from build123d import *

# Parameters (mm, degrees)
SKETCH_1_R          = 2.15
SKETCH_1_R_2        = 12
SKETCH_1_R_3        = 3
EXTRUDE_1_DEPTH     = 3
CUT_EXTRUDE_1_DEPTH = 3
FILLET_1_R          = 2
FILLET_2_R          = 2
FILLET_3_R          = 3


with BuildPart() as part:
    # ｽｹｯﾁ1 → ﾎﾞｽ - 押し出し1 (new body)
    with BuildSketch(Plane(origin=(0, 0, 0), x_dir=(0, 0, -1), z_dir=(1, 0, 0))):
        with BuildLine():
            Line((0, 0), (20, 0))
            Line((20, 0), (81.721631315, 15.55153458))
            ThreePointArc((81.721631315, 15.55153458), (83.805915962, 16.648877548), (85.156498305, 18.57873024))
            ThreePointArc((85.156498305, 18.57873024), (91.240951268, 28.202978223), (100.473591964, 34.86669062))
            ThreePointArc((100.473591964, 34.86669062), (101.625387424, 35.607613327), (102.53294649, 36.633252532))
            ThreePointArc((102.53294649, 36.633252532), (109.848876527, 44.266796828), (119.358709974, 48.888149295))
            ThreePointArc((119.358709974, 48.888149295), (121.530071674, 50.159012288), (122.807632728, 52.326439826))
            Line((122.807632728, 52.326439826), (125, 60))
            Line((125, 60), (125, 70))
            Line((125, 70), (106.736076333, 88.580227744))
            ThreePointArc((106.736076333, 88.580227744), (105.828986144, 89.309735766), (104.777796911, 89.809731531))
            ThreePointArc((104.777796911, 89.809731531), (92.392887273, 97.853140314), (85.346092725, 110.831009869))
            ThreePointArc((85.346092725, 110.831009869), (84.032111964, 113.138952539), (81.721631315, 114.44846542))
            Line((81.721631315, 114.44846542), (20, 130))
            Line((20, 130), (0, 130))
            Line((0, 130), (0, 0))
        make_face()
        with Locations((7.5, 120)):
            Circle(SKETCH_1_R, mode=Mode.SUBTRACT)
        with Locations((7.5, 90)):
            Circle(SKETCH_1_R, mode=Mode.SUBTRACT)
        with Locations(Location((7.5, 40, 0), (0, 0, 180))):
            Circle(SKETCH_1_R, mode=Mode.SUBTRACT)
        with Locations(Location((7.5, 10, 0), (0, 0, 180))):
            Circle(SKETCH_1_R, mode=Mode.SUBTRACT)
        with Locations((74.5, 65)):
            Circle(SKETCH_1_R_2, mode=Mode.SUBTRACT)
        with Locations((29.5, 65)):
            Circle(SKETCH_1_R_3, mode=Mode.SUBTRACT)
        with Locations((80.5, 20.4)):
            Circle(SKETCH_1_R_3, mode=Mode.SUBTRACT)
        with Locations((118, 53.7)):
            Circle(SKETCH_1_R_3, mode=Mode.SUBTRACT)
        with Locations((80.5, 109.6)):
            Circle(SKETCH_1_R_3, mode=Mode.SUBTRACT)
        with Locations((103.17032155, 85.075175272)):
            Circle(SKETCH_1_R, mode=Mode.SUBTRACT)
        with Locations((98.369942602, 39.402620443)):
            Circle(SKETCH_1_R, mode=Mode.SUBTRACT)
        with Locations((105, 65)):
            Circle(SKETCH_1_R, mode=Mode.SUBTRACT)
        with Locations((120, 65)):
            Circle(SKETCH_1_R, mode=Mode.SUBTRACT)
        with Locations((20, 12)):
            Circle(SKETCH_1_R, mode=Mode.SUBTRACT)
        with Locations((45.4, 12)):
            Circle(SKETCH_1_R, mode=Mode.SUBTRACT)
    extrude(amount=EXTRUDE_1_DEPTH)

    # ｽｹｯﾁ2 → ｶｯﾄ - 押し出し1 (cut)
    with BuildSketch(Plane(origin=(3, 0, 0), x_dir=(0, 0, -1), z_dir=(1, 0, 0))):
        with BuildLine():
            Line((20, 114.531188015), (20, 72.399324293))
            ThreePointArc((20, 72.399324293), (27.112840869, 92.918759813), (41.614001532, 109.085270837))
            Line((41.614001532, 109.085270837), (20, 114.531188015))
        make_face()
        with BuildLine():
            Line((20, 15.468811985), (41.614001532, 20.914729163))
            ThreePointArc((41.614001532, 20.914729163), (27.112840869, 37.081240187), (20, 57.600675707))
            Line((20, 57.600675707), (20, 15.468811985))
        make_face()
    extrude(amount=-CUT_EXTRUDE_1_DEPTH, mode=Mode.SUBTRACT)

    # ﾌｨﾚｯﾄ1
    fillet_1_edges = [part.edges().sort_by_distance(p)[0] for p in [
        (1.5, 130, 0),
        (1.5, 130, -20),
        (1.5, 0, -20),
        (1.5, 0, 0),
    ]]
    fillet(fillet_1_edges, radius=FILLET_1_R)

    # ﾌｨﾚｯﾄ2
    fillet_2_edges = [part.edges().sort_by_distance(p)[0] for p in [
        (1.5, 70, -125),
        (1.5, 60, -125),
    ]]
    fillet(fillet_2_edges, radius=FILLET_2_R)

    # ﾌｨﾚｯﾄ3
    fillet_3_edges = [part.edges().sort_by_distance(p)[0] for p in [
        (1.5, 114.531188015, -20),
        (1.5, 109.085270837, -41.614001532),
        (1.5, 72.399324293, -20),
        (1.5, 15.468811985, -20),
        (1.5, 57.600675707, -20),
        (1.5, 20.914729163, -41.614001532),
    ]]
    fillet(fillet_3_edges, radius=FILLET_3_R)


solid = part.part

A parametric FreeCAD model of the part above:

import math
import FreeCAD as App
import Part
import Sketcher


def edges_at(feature, points):
    """Names of the edges that pass closest to the given points."""
    edges = feature.Shape.Edges
    near = lambda p: min(range(len(edges)), key=lambda i: edges[i].distToShape(Part.Vertex(*p))[0])
    return sorted({f"Edge{near(p) + 1}" for p in points})

doc = App.newDocument("Part")
body = doc.addObject("PartDesign::Body", "Body")

sketch1 = body.newObject("Sketcher::SketchObject", "Sketch")
sketch1.AttachmentSupport = (doc.getObject("YZ_Plane"), [""])
sketch1.MapMode = "FlatFace"
sketch1.addGeometry(Part.LineSegment(App.Vector(0, 0, 0), App.Vector(0, -20, 0)), False)
sketch1.addGeometry(Part.LineSegment(App.Vector(0, -20, 0), App.Vector(15.551535, -81.721631, 0)), False)
sketch1.addGeometry(Part.ArcOfCircle(Part.Circle(App.Vector(20.4, -80.5, 0), App.Vector(0, 0, 1), 5), math.radians(-165.857979), math.radians(-111.361677)), False)
sketch1.addGeometry(Part.ArcOfCircle(Part.Circle(App.Vector(7.651112, -113.095488, 0), App.Vector(0, 0, 1), 30), math.radians(24.880676), math.radians(68.638323)), False)
sketch1.addGeometry(Part.ArcOfCircle(Part.Circle(App.Vector(39.40262, -98.369943, 0), App.Vector(0, 0, 1), 5), math.radians(-155.119324), math.radians(-123.633165)), False)
sketch1.addGeometry(Part.ArcOfCircle(Part.Circle(App.Vector(20.017045, -127.51097, 0), App.Vector(0, 0, 1), 30), math.radians(15.767952), math.radians(56.366835)), False)
sketch1.addGeometry(Part.ArcOfCircle(Part.Circle(App.Vector(53.7, -118, 0), App.Vector(0, 0, 1), 5), math.radians(-164.232048), math.radians(-105.944854)), False)
sketch1.addGeometry(Part.LineSegment(App.Vector(52.32644, -122.807633, 0), App.Vector(60, -125, 0)), False)
sketch1.addGeometry(Part.LineSegment(App.Vector(60, -125, 0), App.Vector(70, -125, 0)), False)
sketch1.addGeometry(Part.LineSegment(App.Vector(70, -125, 0), App.Vector(88.580228, -106.736076, 0)), False)
sketch1.addGeometry(Part.ArcOfCircle(Part.Circle(App.Vector(85.075175, -103.170322, 0), App.Vector(0, 0, 1), 5), math.radians(-45.491868), math.radians(-18.753365)), False)
sketch1.addGeometry(Part.ArcOfCircle(Part.Circle(App.Vector(118.217069, -114.422649, 0), App.Vector(0, 0, 1), 30), math.radians(104.252878), math.radians(161.246635)), False)
sketch1.addGeometry(Part.ArcOfCircle(Part.Circle(App.Vector(109.6, -80.5, 0), App.Vector(0, 0, 1), 5), math.radians(-75.747122), math.radians(-14.142021)), False)
sketch1.addGeometry(Part.LineSegment(App.Vector(114.448465, -81.721631, 0), App.Vector(130, -20, 0)), False)
sketch1.addGeometry(Part.LineSegment(App.Vector(130, -20, 0), App.Vector(130, 0, 0)), False)
sketch1.addGeometry(Part.LineSegment(App.Vector(130, 0, 0), App.Vector(0, 0, 0)), False)
sketch1.addGeometry(Part.Circle(App.Vector(10, -7.5, 0), App.Vector(0, 0, 1), 2.15), False)
sketch1.addGeometry(Part.Circle(App.Vector(12, -20, 0), App.Vector(0, 0, 1), 2.15), False)
sketch1.addGeometry(Part.Circle(App.Vector(12, -45.4, 0), App.Vector(0, 0, 1), 2.15), False)
sketch1.addGeometry(Part.Circle(App.Vector(40, -7.5, 0), App.Vector(0, 0, 1), 2.15), False)
sketch1.addGeometry(Part.Circle(App.Vector(20.4, -80.5, 0), App.Vector(0, 0, 1), 3), False)
sketch1.addGeometry(Part.Circle(App.Vector(39.40262, -98.369943, 0), App.Vector(0, 0, 1), 2.15), False)
sketch1.addGeometry(Part.Circle(App.Vector(53.7, -118, 0), App.Vector(0, 0, 1), 3), False)
sketch1.addGeometry(Part.Circle(App.Vector(65, -29.5, 0), App.Vector(0, 0, 1), 3), False)
sketch1.addGeometry(Part.Circle(App.Vector(90, -7.5, 0), App.Vector(0, 0, 1), 2.15), False)
sketch1.addGeometry(Part.Circle(App.Vector(120, -7.5, 0), App.Vector(0, 0, 1), 2.15), False)
sketch1.addGeometry(Part.Circle(App.Vector(65, -74.5, 0), App.Vector(0, 0, 1), 12), False)
sketch1.addGeometry(Part.Circle(App.Vector(65, -105, 0), App.Vector(0, 0, 1), 2.15), False)
sketch1.addGeometry(Part.Circle(App.Vector(65, -120, 0), App.Vector(0, 0, 1), 2.15), False)
sketch1.addGeometry(Part.Circle(App.Vector(85.075175, -103.170322, 0), App.Vector(0, 0, 1), 2.15), False)
sketch1.addGeometry(Part.Circle(App.Vector(109.6, -80.5, 0), App.Vector(0, 0, 1), 3), False)
sketch1.addConstraint(Sketcher.Constraint("Coincident", 0, 2, 1, 1))
sketch1.addConstraint(Sketcher.Constraint("Tangent", 1, 2, 2, 1))
sketch1.addConstraint(Sketcher.Constraint("Tangent", 2, 2, 3, 2))
sketch1.addConstraint(Sketcher.Constraint("Tangent", 3, 1, 4, 1))
sketch1.addConstraint(Sketcher.Constraint("Tangent", 4, 2, 5, 2))
sketch1.addConstraint(Sketcher.Constraint("Tangent", 5, 1, 6, 1))
sketch1.addConstraint(Sketcher.Constraint("Tangent", 6, 2, 7, 1))
sketch1.addConstraint(Sketcher.Constraint("Coincident", 7, 2, 8, 1))
sketch1.addConstraint(Sketcher.Constraint("Coincident", 8, 2, 9, 1))
sketch1.addConstraint(Sketcher.Constraint("Tangent", 9, 2, 10, 1))
sketch1.addConstraint(Sketcher.Constraint("Tangent", 10, 2, 11, 2))
sketch1.addConstraint(Sketcher.Constraint("Tangent", 11, 1, 12, 1))
sketch1.addConstraint(Sketcher.Constraint("Tangent", 12, 2, 13, 1))
sketch1.addConstraint(Sketcher.Constraint("Coincident", 13, 2, 14, 1))
sketch1.addConstraint(Sketcher.Constraint("Coincident", 14, 2, 15, 1))
sketch1.addConstraint(Sketcher.Constraint("Coincident", 15, 2, 0, 1))
sketch1.addConstraint(Sketcher.Constraint("Vertical", 0))
sketch1.addConstraint(Sketcher.Constraint("Horizontal", 8))
sketch1.addConstraint(Sketcher.Constraint("Vertical", 14))
sketch1.addConstraint(Sketcher.Constraint("Horizontal", 15))
sketch1.addConstraint(Sketcher.Constraint("Coincident", 15, 2, -1, 1))
sketch1.addConstraint(Sketcher.Constraint("Coincident", 20, 3, 2, 3))
sketch1.addConstraint(Sketcher.Constraint("Coincident", 21, 3, 4, 3))
sketch1.addConstraint(Sketcher.Constraint("Coincident", 22, 3, 6, 3))
sketch1.addConstraint(Sketcher.Constraint("Coincident", 29, 3, 10, 3))
sketch1.addConstraint(Sketcher.Constraint("Coincident", 30, 3, 12, 3))
sketch1.addConstraint(Sketcher.Constraint("Equal", 2, 4))
sketch1.addConstraint(Sketcher.Constraint("Equal", 3, 5))
sketch1.addConstraint(Sketcher.Constraint("Equal", 4, 6))
sketch1.addConstraint(Sketcher.Constraint("Equal", 6, 10))
sketch1.addConstraint(Sketcher.Constraint("Equal", 5, 11))
sketch1.addConstraint(Sketcher.Constraint("Equal", 10, 12))
sketch1.addConstraint(Sketcher.Constraint("Equal", 16, 17))
sketch1.addConstraint(Sketcher.Constraint("Equal", 17, 18))
sketch1.addConstraint(Sketcher.Constraint("Equal", 18, 19))
sketch1.addConstraint(Sketcher.Constraint("Equal", 19, 21))
sketch1.addConstraint(Sketcher.Constraint("Equal", 20, 22))
sketch1.addConstraint(Sketcher.Constraint("Equal", 22, 23))
sketch1.addConstraint(Sketcher.Constraint("Equal", 21, 24))
sketch1.addConstraint(Sketcher.Constraint("Equal", 24, 25))
sketch1.addConstraint(Sketcher.Constraint("Equal", 25, 27))
sketch1.addConstraint(Sketcher.Constraint("Equal", 27, 28))
sketch1.addConstraint(Sketcher.Constraint("Equal", 28, 29))
sketch1.addConstraint(Sketcher.Constraint("Equal", 23, 30))
sketch1.addConstraint(Sketcher.Constraint("Horizontal", 2, 3, 12, 3))
sketch1.addConstraint(Sketcher.Constraint("Horizontal", 16, 3, 19, 3))
sketch1.addConstraint(Sketcher.Constraint("Horizontal", 19, 3, 24, 3))
sketch1.addConstraint(Sketcher.Constraint("Horizontal", 24, 3, 25, 3))
sketch1.addConstraint(Sketcher.Constraint("Horizontal", 17, 3, 0, 2))
sketch1.addConstraint(Sketcher.Constraint("Horizontal", 1, 2, 12, 2))
sketch1.addConstraint(Sketcher.Constraint("Horizontal", 0, 2, 13, 2))
sketch1.addConstraint(Sketcher.Constraint("Vertical", 17, 3, 18, 3))
sketch1.addConstraint(Sketcher.Constraint("Vertical", 23, 3, 26, 3))
sketch1.addConstraint(Sketcher.Constraint("Vertical", 26, 3, 27, 3))
sketch1.addConstraint(Sketcher.Constraint("Vertical", 27, 3, 28, 3))
sketch1.addConstraint(Sketcher.Constraint("Diameter", 20, 6.0))
sketch1.addConstraint(Sketcher.Constraint("Diameter", 26, 24.0))
sketch1.addConstraint(Sketcher.Constraint("Radius", 2, 5.0))
sketch1.addConstraint(Sketcher.Constraint("Radius", 3, 30.0))
sketch1.addConstraint(Sketcher.Constraint("Diameter", 16, 4.3))
sketch1.addConstraint(Sketcher.Constraint("DistanceX", 8, 1, 8, 2, 10.0))
sketch1.addConstraint(Sketcher.Constraint("DistanceX", 15, 2, 15, 1, 130.0))
sketch1.addConstraint(Sketcher.Constraint("DistanceY", 0, 2, 0, 1, 20.0))
sketch1.addConstraint(Sketcher.Constraint("DistanceY", 6, 3, -1, 1, 118.0))
sketch1.addConstraint(Sketcher.Constraint("DistanceX", -1, 1, 16, 3, 10.0))
sketch1.addConstraint(Sketcher.Constraint("DistanceX", -1, 1, 17, 3, 12.0))
sketch1.addConstraint(Sketcher.Constraint("DistanceX", -1, 1, 19, 3, 40.0))
sketch1.addConstraint(Sketcher.Constraint("DistanceX", -1, 1, 23, 3, 65.0))
sketch1.addConstraint(Sketcher.Constraint("DistanceX", -1, 1, 24, 3, 90.0))
sketch1.addConstraint(Sketcher.Constraint("DistanceX", -1, 1, 25, 3, 120.0))
sketch1.addConstraint(Sketcher.Constraint("DistanceY", 27, 3, -1, 1, 105.0))
sketch1.addConstraint(Sketcher.Constraint("DistanceY", 28, 3, -1, 1, 120.0))
sketch1.addConstraint(Sketcher.Constraint("DistanceX", -1, 1, 7, 2, 60.0))
sketch1.addConstraint(Sketcher.Constraint("DistanceY", 7, 2, -1, 1, 125.0))
sketch1.addConstraint(Sketcher.Constraint("DistanceY", 2, 3, 16, 3, 73.0))
sketch1.addConstraint(Sketcher.Constraint("DistanceY", 23, 3, 19, 3, 22.0))
sketch1.addConstraint(Sketcher.Constraint("DistanceY", 30, 3, 26, 3, 6.0))
sketch1.addConstraint(Sketcher.Constraint("DistanceX", -1, 1, 2, 3, 20.4))
sketch1.addConstraint(Sketcher.Constraint("DistanceY", 2, 3, -1, 1, 80.5))
sketch1.addConstraint(Sketcher.Constraint("DistanceX", -1, 1, 6, 3, 53.7))
sketch1.addConstraint(Sketcher.Constraint("DistanceY", 18, 3, -1, 1, 45.4))
sketch1.addConstraint(Sketcher.Constraint("DistanceY", 2, 2, -1, 1, 85.156498))
sketch1.addConstraint(Sketcher.Constraint("Distance", 9, 26.053709))
sketch1.addConstraint(Sketcher.Constraint("DistanceX", -1, 1, 4, 3, 39.40262))
sketch1.addConstraint(Sketcher.Constraint("DistanceY", 10, 3, -1, 1, 103.170322))
pad1 = body.newObject("PartDesign::Pad", "Pad")
pad1.Profile = sketch1
pad1.Length = 3

sketch2 = body.newObject("Sketcher::SketchObject", "Sketch001")
sketch2.AttachmentSupport = (doc.getObject("YZ_Plane"), [""])
sketch2.MapMode = "FlatFace"
sketch2.AttachmentOffset = App.Placement(App.Vector(0, 0, 3), App.Rotation())
sketch2.addGeometry(Part.LineSegment(App.Vector(114.531188, -20, 0), App.Vector(72.399324, -20, 0)), False)
sketch2.addGeometry(Part.ArcOfCircle(Part.Circle(App.Vector(65, -74.5, 0), App.Vector(0, 0, 1), 55), math.radians(36.721591), math.radians(82.268374)), False)
sketch2.addGeometry(Part.LineSegment(App.Vector(109.085271, -41.614002, 0), App.Vector(114.531188, -20, 0)), False)
sketch2.addGeometry(Part.LineSegment(App.Vector(15.468812, -20, 0), App.Vector(20.914729, -41.614002, 0)), False)
sketch2.addGeometry(Part.ArcOfCircle(Part.Circle(App.Vector(65, -74.5, 0), App.Vector(0, 0, 1), 55), math.radians(97.731626), math.radians(143.278409)), False)
sketch2.addGeometry(Part.LineSegment(App.Vector(57.600676, -20, 0), App.Vector(15.468812, -20, 0)), False)
sketch2.addConstraint(Sketcher.Constraint("Coincident", 0, 2, 1, 2))
sketch2.addConstraint(Sketcher.Constraint("Coincident", 1, 1, 2, 1))
sketch2.addConstraint(Sketcher.Constraint("Coincident", 2, 2, 0, 1))
sketch2.addConstraint(Sketcher.Constraint("Coincident", 3, 2, 4, 2))
sketch2.addConstraint(Sketcher.Constraint("Coincident", 4, 1, 5, 1))
sketch2.addConstraint(Sketcher.Constraint("Coincident", 5, 2, 3, 1))
sketch2.addConstraint(Sketcher.Constraint("Horizontal", 0))
sketch2.addConstraint(Sketcher.Constraint("Horizontal", 5))
sketch2.addConstraint(Sketcher.Constraint("Coincident", 4, 3, 1, 3))
sketch2.addConstraint(Sketcher.Constraint("Equal", 1, 4))
sketch2.addConstraint(Sketcher.Constraint("Horizontal", 1, 1, 3, 2))
sketch2.addConstraint(Sketcher.Constraint("Horizontal", 2, 2, 4, 1))
sketch2.addConstraint(Sketcher.Constraint("Equal", 0, 5))
sketch2.addConstraint(Sketcher.Constraint("Radius", 1, 55.0))
sketch2.addConstraint(Sketcher.Constraint("DistanceX", -1, 1, 1, 3, 65.0))
sketch2.addConstraint(Sketcher.Constraint("DistanceY", 0, 2, -1, 1, 20.0))
sketch2.addConstraint(Sketcher.Constraint("DistanceY", 1, 3, -1, 1, 74.5))
sketch2.addConstraint(Sketcher.Constraint("DistanceY", 1, 1, -1, 1, 41.614002))
sketch2.addConstraint(Sketcher.Constraint("Distance", 2, 22.289528))
pocket1 = body.newObject("PartDesign::Pocket", "Pocket")
pocket1.Profile = sketch2
pocket1.Length = 3
doc.recompute()

fillet = body.newObject("PartDesign::Fillet", "Fillet")
fillet.Base = (pocket1, edges_at(pocket1, [
    (1.5, 130, 0),
    (1.5, 130, -20),
    (1.5, 0, -20),
    (1.5, 0, 0),
]))
fillet.Radius = 2
doc.recompute()

fillet2 = body.newObject("PartDesign::Fillet", "Fillet001")
fillet2.Base = (fillet, edges_at(fillet, [(1.5, 70, -125), (1.5, 60, -125)]))
fillet2.Radius = 2
doc.recompute()

fillet3 = body.newObject("PartDesign::Fillet", "Fillet002")
fillet3.Base = (fillet2, edges_at(fillet2, [
    (1.5, 114.531, -20),
    (1.5, 109.085, -41.614),
    (1.5, 72.399, -20),
    (1.5, 15.469, -20),
    (1.5, 57.601, -20),
    (1.5, 20.915, -41.614),
]))
fillet3.Radius = 3

doc.recompute()
